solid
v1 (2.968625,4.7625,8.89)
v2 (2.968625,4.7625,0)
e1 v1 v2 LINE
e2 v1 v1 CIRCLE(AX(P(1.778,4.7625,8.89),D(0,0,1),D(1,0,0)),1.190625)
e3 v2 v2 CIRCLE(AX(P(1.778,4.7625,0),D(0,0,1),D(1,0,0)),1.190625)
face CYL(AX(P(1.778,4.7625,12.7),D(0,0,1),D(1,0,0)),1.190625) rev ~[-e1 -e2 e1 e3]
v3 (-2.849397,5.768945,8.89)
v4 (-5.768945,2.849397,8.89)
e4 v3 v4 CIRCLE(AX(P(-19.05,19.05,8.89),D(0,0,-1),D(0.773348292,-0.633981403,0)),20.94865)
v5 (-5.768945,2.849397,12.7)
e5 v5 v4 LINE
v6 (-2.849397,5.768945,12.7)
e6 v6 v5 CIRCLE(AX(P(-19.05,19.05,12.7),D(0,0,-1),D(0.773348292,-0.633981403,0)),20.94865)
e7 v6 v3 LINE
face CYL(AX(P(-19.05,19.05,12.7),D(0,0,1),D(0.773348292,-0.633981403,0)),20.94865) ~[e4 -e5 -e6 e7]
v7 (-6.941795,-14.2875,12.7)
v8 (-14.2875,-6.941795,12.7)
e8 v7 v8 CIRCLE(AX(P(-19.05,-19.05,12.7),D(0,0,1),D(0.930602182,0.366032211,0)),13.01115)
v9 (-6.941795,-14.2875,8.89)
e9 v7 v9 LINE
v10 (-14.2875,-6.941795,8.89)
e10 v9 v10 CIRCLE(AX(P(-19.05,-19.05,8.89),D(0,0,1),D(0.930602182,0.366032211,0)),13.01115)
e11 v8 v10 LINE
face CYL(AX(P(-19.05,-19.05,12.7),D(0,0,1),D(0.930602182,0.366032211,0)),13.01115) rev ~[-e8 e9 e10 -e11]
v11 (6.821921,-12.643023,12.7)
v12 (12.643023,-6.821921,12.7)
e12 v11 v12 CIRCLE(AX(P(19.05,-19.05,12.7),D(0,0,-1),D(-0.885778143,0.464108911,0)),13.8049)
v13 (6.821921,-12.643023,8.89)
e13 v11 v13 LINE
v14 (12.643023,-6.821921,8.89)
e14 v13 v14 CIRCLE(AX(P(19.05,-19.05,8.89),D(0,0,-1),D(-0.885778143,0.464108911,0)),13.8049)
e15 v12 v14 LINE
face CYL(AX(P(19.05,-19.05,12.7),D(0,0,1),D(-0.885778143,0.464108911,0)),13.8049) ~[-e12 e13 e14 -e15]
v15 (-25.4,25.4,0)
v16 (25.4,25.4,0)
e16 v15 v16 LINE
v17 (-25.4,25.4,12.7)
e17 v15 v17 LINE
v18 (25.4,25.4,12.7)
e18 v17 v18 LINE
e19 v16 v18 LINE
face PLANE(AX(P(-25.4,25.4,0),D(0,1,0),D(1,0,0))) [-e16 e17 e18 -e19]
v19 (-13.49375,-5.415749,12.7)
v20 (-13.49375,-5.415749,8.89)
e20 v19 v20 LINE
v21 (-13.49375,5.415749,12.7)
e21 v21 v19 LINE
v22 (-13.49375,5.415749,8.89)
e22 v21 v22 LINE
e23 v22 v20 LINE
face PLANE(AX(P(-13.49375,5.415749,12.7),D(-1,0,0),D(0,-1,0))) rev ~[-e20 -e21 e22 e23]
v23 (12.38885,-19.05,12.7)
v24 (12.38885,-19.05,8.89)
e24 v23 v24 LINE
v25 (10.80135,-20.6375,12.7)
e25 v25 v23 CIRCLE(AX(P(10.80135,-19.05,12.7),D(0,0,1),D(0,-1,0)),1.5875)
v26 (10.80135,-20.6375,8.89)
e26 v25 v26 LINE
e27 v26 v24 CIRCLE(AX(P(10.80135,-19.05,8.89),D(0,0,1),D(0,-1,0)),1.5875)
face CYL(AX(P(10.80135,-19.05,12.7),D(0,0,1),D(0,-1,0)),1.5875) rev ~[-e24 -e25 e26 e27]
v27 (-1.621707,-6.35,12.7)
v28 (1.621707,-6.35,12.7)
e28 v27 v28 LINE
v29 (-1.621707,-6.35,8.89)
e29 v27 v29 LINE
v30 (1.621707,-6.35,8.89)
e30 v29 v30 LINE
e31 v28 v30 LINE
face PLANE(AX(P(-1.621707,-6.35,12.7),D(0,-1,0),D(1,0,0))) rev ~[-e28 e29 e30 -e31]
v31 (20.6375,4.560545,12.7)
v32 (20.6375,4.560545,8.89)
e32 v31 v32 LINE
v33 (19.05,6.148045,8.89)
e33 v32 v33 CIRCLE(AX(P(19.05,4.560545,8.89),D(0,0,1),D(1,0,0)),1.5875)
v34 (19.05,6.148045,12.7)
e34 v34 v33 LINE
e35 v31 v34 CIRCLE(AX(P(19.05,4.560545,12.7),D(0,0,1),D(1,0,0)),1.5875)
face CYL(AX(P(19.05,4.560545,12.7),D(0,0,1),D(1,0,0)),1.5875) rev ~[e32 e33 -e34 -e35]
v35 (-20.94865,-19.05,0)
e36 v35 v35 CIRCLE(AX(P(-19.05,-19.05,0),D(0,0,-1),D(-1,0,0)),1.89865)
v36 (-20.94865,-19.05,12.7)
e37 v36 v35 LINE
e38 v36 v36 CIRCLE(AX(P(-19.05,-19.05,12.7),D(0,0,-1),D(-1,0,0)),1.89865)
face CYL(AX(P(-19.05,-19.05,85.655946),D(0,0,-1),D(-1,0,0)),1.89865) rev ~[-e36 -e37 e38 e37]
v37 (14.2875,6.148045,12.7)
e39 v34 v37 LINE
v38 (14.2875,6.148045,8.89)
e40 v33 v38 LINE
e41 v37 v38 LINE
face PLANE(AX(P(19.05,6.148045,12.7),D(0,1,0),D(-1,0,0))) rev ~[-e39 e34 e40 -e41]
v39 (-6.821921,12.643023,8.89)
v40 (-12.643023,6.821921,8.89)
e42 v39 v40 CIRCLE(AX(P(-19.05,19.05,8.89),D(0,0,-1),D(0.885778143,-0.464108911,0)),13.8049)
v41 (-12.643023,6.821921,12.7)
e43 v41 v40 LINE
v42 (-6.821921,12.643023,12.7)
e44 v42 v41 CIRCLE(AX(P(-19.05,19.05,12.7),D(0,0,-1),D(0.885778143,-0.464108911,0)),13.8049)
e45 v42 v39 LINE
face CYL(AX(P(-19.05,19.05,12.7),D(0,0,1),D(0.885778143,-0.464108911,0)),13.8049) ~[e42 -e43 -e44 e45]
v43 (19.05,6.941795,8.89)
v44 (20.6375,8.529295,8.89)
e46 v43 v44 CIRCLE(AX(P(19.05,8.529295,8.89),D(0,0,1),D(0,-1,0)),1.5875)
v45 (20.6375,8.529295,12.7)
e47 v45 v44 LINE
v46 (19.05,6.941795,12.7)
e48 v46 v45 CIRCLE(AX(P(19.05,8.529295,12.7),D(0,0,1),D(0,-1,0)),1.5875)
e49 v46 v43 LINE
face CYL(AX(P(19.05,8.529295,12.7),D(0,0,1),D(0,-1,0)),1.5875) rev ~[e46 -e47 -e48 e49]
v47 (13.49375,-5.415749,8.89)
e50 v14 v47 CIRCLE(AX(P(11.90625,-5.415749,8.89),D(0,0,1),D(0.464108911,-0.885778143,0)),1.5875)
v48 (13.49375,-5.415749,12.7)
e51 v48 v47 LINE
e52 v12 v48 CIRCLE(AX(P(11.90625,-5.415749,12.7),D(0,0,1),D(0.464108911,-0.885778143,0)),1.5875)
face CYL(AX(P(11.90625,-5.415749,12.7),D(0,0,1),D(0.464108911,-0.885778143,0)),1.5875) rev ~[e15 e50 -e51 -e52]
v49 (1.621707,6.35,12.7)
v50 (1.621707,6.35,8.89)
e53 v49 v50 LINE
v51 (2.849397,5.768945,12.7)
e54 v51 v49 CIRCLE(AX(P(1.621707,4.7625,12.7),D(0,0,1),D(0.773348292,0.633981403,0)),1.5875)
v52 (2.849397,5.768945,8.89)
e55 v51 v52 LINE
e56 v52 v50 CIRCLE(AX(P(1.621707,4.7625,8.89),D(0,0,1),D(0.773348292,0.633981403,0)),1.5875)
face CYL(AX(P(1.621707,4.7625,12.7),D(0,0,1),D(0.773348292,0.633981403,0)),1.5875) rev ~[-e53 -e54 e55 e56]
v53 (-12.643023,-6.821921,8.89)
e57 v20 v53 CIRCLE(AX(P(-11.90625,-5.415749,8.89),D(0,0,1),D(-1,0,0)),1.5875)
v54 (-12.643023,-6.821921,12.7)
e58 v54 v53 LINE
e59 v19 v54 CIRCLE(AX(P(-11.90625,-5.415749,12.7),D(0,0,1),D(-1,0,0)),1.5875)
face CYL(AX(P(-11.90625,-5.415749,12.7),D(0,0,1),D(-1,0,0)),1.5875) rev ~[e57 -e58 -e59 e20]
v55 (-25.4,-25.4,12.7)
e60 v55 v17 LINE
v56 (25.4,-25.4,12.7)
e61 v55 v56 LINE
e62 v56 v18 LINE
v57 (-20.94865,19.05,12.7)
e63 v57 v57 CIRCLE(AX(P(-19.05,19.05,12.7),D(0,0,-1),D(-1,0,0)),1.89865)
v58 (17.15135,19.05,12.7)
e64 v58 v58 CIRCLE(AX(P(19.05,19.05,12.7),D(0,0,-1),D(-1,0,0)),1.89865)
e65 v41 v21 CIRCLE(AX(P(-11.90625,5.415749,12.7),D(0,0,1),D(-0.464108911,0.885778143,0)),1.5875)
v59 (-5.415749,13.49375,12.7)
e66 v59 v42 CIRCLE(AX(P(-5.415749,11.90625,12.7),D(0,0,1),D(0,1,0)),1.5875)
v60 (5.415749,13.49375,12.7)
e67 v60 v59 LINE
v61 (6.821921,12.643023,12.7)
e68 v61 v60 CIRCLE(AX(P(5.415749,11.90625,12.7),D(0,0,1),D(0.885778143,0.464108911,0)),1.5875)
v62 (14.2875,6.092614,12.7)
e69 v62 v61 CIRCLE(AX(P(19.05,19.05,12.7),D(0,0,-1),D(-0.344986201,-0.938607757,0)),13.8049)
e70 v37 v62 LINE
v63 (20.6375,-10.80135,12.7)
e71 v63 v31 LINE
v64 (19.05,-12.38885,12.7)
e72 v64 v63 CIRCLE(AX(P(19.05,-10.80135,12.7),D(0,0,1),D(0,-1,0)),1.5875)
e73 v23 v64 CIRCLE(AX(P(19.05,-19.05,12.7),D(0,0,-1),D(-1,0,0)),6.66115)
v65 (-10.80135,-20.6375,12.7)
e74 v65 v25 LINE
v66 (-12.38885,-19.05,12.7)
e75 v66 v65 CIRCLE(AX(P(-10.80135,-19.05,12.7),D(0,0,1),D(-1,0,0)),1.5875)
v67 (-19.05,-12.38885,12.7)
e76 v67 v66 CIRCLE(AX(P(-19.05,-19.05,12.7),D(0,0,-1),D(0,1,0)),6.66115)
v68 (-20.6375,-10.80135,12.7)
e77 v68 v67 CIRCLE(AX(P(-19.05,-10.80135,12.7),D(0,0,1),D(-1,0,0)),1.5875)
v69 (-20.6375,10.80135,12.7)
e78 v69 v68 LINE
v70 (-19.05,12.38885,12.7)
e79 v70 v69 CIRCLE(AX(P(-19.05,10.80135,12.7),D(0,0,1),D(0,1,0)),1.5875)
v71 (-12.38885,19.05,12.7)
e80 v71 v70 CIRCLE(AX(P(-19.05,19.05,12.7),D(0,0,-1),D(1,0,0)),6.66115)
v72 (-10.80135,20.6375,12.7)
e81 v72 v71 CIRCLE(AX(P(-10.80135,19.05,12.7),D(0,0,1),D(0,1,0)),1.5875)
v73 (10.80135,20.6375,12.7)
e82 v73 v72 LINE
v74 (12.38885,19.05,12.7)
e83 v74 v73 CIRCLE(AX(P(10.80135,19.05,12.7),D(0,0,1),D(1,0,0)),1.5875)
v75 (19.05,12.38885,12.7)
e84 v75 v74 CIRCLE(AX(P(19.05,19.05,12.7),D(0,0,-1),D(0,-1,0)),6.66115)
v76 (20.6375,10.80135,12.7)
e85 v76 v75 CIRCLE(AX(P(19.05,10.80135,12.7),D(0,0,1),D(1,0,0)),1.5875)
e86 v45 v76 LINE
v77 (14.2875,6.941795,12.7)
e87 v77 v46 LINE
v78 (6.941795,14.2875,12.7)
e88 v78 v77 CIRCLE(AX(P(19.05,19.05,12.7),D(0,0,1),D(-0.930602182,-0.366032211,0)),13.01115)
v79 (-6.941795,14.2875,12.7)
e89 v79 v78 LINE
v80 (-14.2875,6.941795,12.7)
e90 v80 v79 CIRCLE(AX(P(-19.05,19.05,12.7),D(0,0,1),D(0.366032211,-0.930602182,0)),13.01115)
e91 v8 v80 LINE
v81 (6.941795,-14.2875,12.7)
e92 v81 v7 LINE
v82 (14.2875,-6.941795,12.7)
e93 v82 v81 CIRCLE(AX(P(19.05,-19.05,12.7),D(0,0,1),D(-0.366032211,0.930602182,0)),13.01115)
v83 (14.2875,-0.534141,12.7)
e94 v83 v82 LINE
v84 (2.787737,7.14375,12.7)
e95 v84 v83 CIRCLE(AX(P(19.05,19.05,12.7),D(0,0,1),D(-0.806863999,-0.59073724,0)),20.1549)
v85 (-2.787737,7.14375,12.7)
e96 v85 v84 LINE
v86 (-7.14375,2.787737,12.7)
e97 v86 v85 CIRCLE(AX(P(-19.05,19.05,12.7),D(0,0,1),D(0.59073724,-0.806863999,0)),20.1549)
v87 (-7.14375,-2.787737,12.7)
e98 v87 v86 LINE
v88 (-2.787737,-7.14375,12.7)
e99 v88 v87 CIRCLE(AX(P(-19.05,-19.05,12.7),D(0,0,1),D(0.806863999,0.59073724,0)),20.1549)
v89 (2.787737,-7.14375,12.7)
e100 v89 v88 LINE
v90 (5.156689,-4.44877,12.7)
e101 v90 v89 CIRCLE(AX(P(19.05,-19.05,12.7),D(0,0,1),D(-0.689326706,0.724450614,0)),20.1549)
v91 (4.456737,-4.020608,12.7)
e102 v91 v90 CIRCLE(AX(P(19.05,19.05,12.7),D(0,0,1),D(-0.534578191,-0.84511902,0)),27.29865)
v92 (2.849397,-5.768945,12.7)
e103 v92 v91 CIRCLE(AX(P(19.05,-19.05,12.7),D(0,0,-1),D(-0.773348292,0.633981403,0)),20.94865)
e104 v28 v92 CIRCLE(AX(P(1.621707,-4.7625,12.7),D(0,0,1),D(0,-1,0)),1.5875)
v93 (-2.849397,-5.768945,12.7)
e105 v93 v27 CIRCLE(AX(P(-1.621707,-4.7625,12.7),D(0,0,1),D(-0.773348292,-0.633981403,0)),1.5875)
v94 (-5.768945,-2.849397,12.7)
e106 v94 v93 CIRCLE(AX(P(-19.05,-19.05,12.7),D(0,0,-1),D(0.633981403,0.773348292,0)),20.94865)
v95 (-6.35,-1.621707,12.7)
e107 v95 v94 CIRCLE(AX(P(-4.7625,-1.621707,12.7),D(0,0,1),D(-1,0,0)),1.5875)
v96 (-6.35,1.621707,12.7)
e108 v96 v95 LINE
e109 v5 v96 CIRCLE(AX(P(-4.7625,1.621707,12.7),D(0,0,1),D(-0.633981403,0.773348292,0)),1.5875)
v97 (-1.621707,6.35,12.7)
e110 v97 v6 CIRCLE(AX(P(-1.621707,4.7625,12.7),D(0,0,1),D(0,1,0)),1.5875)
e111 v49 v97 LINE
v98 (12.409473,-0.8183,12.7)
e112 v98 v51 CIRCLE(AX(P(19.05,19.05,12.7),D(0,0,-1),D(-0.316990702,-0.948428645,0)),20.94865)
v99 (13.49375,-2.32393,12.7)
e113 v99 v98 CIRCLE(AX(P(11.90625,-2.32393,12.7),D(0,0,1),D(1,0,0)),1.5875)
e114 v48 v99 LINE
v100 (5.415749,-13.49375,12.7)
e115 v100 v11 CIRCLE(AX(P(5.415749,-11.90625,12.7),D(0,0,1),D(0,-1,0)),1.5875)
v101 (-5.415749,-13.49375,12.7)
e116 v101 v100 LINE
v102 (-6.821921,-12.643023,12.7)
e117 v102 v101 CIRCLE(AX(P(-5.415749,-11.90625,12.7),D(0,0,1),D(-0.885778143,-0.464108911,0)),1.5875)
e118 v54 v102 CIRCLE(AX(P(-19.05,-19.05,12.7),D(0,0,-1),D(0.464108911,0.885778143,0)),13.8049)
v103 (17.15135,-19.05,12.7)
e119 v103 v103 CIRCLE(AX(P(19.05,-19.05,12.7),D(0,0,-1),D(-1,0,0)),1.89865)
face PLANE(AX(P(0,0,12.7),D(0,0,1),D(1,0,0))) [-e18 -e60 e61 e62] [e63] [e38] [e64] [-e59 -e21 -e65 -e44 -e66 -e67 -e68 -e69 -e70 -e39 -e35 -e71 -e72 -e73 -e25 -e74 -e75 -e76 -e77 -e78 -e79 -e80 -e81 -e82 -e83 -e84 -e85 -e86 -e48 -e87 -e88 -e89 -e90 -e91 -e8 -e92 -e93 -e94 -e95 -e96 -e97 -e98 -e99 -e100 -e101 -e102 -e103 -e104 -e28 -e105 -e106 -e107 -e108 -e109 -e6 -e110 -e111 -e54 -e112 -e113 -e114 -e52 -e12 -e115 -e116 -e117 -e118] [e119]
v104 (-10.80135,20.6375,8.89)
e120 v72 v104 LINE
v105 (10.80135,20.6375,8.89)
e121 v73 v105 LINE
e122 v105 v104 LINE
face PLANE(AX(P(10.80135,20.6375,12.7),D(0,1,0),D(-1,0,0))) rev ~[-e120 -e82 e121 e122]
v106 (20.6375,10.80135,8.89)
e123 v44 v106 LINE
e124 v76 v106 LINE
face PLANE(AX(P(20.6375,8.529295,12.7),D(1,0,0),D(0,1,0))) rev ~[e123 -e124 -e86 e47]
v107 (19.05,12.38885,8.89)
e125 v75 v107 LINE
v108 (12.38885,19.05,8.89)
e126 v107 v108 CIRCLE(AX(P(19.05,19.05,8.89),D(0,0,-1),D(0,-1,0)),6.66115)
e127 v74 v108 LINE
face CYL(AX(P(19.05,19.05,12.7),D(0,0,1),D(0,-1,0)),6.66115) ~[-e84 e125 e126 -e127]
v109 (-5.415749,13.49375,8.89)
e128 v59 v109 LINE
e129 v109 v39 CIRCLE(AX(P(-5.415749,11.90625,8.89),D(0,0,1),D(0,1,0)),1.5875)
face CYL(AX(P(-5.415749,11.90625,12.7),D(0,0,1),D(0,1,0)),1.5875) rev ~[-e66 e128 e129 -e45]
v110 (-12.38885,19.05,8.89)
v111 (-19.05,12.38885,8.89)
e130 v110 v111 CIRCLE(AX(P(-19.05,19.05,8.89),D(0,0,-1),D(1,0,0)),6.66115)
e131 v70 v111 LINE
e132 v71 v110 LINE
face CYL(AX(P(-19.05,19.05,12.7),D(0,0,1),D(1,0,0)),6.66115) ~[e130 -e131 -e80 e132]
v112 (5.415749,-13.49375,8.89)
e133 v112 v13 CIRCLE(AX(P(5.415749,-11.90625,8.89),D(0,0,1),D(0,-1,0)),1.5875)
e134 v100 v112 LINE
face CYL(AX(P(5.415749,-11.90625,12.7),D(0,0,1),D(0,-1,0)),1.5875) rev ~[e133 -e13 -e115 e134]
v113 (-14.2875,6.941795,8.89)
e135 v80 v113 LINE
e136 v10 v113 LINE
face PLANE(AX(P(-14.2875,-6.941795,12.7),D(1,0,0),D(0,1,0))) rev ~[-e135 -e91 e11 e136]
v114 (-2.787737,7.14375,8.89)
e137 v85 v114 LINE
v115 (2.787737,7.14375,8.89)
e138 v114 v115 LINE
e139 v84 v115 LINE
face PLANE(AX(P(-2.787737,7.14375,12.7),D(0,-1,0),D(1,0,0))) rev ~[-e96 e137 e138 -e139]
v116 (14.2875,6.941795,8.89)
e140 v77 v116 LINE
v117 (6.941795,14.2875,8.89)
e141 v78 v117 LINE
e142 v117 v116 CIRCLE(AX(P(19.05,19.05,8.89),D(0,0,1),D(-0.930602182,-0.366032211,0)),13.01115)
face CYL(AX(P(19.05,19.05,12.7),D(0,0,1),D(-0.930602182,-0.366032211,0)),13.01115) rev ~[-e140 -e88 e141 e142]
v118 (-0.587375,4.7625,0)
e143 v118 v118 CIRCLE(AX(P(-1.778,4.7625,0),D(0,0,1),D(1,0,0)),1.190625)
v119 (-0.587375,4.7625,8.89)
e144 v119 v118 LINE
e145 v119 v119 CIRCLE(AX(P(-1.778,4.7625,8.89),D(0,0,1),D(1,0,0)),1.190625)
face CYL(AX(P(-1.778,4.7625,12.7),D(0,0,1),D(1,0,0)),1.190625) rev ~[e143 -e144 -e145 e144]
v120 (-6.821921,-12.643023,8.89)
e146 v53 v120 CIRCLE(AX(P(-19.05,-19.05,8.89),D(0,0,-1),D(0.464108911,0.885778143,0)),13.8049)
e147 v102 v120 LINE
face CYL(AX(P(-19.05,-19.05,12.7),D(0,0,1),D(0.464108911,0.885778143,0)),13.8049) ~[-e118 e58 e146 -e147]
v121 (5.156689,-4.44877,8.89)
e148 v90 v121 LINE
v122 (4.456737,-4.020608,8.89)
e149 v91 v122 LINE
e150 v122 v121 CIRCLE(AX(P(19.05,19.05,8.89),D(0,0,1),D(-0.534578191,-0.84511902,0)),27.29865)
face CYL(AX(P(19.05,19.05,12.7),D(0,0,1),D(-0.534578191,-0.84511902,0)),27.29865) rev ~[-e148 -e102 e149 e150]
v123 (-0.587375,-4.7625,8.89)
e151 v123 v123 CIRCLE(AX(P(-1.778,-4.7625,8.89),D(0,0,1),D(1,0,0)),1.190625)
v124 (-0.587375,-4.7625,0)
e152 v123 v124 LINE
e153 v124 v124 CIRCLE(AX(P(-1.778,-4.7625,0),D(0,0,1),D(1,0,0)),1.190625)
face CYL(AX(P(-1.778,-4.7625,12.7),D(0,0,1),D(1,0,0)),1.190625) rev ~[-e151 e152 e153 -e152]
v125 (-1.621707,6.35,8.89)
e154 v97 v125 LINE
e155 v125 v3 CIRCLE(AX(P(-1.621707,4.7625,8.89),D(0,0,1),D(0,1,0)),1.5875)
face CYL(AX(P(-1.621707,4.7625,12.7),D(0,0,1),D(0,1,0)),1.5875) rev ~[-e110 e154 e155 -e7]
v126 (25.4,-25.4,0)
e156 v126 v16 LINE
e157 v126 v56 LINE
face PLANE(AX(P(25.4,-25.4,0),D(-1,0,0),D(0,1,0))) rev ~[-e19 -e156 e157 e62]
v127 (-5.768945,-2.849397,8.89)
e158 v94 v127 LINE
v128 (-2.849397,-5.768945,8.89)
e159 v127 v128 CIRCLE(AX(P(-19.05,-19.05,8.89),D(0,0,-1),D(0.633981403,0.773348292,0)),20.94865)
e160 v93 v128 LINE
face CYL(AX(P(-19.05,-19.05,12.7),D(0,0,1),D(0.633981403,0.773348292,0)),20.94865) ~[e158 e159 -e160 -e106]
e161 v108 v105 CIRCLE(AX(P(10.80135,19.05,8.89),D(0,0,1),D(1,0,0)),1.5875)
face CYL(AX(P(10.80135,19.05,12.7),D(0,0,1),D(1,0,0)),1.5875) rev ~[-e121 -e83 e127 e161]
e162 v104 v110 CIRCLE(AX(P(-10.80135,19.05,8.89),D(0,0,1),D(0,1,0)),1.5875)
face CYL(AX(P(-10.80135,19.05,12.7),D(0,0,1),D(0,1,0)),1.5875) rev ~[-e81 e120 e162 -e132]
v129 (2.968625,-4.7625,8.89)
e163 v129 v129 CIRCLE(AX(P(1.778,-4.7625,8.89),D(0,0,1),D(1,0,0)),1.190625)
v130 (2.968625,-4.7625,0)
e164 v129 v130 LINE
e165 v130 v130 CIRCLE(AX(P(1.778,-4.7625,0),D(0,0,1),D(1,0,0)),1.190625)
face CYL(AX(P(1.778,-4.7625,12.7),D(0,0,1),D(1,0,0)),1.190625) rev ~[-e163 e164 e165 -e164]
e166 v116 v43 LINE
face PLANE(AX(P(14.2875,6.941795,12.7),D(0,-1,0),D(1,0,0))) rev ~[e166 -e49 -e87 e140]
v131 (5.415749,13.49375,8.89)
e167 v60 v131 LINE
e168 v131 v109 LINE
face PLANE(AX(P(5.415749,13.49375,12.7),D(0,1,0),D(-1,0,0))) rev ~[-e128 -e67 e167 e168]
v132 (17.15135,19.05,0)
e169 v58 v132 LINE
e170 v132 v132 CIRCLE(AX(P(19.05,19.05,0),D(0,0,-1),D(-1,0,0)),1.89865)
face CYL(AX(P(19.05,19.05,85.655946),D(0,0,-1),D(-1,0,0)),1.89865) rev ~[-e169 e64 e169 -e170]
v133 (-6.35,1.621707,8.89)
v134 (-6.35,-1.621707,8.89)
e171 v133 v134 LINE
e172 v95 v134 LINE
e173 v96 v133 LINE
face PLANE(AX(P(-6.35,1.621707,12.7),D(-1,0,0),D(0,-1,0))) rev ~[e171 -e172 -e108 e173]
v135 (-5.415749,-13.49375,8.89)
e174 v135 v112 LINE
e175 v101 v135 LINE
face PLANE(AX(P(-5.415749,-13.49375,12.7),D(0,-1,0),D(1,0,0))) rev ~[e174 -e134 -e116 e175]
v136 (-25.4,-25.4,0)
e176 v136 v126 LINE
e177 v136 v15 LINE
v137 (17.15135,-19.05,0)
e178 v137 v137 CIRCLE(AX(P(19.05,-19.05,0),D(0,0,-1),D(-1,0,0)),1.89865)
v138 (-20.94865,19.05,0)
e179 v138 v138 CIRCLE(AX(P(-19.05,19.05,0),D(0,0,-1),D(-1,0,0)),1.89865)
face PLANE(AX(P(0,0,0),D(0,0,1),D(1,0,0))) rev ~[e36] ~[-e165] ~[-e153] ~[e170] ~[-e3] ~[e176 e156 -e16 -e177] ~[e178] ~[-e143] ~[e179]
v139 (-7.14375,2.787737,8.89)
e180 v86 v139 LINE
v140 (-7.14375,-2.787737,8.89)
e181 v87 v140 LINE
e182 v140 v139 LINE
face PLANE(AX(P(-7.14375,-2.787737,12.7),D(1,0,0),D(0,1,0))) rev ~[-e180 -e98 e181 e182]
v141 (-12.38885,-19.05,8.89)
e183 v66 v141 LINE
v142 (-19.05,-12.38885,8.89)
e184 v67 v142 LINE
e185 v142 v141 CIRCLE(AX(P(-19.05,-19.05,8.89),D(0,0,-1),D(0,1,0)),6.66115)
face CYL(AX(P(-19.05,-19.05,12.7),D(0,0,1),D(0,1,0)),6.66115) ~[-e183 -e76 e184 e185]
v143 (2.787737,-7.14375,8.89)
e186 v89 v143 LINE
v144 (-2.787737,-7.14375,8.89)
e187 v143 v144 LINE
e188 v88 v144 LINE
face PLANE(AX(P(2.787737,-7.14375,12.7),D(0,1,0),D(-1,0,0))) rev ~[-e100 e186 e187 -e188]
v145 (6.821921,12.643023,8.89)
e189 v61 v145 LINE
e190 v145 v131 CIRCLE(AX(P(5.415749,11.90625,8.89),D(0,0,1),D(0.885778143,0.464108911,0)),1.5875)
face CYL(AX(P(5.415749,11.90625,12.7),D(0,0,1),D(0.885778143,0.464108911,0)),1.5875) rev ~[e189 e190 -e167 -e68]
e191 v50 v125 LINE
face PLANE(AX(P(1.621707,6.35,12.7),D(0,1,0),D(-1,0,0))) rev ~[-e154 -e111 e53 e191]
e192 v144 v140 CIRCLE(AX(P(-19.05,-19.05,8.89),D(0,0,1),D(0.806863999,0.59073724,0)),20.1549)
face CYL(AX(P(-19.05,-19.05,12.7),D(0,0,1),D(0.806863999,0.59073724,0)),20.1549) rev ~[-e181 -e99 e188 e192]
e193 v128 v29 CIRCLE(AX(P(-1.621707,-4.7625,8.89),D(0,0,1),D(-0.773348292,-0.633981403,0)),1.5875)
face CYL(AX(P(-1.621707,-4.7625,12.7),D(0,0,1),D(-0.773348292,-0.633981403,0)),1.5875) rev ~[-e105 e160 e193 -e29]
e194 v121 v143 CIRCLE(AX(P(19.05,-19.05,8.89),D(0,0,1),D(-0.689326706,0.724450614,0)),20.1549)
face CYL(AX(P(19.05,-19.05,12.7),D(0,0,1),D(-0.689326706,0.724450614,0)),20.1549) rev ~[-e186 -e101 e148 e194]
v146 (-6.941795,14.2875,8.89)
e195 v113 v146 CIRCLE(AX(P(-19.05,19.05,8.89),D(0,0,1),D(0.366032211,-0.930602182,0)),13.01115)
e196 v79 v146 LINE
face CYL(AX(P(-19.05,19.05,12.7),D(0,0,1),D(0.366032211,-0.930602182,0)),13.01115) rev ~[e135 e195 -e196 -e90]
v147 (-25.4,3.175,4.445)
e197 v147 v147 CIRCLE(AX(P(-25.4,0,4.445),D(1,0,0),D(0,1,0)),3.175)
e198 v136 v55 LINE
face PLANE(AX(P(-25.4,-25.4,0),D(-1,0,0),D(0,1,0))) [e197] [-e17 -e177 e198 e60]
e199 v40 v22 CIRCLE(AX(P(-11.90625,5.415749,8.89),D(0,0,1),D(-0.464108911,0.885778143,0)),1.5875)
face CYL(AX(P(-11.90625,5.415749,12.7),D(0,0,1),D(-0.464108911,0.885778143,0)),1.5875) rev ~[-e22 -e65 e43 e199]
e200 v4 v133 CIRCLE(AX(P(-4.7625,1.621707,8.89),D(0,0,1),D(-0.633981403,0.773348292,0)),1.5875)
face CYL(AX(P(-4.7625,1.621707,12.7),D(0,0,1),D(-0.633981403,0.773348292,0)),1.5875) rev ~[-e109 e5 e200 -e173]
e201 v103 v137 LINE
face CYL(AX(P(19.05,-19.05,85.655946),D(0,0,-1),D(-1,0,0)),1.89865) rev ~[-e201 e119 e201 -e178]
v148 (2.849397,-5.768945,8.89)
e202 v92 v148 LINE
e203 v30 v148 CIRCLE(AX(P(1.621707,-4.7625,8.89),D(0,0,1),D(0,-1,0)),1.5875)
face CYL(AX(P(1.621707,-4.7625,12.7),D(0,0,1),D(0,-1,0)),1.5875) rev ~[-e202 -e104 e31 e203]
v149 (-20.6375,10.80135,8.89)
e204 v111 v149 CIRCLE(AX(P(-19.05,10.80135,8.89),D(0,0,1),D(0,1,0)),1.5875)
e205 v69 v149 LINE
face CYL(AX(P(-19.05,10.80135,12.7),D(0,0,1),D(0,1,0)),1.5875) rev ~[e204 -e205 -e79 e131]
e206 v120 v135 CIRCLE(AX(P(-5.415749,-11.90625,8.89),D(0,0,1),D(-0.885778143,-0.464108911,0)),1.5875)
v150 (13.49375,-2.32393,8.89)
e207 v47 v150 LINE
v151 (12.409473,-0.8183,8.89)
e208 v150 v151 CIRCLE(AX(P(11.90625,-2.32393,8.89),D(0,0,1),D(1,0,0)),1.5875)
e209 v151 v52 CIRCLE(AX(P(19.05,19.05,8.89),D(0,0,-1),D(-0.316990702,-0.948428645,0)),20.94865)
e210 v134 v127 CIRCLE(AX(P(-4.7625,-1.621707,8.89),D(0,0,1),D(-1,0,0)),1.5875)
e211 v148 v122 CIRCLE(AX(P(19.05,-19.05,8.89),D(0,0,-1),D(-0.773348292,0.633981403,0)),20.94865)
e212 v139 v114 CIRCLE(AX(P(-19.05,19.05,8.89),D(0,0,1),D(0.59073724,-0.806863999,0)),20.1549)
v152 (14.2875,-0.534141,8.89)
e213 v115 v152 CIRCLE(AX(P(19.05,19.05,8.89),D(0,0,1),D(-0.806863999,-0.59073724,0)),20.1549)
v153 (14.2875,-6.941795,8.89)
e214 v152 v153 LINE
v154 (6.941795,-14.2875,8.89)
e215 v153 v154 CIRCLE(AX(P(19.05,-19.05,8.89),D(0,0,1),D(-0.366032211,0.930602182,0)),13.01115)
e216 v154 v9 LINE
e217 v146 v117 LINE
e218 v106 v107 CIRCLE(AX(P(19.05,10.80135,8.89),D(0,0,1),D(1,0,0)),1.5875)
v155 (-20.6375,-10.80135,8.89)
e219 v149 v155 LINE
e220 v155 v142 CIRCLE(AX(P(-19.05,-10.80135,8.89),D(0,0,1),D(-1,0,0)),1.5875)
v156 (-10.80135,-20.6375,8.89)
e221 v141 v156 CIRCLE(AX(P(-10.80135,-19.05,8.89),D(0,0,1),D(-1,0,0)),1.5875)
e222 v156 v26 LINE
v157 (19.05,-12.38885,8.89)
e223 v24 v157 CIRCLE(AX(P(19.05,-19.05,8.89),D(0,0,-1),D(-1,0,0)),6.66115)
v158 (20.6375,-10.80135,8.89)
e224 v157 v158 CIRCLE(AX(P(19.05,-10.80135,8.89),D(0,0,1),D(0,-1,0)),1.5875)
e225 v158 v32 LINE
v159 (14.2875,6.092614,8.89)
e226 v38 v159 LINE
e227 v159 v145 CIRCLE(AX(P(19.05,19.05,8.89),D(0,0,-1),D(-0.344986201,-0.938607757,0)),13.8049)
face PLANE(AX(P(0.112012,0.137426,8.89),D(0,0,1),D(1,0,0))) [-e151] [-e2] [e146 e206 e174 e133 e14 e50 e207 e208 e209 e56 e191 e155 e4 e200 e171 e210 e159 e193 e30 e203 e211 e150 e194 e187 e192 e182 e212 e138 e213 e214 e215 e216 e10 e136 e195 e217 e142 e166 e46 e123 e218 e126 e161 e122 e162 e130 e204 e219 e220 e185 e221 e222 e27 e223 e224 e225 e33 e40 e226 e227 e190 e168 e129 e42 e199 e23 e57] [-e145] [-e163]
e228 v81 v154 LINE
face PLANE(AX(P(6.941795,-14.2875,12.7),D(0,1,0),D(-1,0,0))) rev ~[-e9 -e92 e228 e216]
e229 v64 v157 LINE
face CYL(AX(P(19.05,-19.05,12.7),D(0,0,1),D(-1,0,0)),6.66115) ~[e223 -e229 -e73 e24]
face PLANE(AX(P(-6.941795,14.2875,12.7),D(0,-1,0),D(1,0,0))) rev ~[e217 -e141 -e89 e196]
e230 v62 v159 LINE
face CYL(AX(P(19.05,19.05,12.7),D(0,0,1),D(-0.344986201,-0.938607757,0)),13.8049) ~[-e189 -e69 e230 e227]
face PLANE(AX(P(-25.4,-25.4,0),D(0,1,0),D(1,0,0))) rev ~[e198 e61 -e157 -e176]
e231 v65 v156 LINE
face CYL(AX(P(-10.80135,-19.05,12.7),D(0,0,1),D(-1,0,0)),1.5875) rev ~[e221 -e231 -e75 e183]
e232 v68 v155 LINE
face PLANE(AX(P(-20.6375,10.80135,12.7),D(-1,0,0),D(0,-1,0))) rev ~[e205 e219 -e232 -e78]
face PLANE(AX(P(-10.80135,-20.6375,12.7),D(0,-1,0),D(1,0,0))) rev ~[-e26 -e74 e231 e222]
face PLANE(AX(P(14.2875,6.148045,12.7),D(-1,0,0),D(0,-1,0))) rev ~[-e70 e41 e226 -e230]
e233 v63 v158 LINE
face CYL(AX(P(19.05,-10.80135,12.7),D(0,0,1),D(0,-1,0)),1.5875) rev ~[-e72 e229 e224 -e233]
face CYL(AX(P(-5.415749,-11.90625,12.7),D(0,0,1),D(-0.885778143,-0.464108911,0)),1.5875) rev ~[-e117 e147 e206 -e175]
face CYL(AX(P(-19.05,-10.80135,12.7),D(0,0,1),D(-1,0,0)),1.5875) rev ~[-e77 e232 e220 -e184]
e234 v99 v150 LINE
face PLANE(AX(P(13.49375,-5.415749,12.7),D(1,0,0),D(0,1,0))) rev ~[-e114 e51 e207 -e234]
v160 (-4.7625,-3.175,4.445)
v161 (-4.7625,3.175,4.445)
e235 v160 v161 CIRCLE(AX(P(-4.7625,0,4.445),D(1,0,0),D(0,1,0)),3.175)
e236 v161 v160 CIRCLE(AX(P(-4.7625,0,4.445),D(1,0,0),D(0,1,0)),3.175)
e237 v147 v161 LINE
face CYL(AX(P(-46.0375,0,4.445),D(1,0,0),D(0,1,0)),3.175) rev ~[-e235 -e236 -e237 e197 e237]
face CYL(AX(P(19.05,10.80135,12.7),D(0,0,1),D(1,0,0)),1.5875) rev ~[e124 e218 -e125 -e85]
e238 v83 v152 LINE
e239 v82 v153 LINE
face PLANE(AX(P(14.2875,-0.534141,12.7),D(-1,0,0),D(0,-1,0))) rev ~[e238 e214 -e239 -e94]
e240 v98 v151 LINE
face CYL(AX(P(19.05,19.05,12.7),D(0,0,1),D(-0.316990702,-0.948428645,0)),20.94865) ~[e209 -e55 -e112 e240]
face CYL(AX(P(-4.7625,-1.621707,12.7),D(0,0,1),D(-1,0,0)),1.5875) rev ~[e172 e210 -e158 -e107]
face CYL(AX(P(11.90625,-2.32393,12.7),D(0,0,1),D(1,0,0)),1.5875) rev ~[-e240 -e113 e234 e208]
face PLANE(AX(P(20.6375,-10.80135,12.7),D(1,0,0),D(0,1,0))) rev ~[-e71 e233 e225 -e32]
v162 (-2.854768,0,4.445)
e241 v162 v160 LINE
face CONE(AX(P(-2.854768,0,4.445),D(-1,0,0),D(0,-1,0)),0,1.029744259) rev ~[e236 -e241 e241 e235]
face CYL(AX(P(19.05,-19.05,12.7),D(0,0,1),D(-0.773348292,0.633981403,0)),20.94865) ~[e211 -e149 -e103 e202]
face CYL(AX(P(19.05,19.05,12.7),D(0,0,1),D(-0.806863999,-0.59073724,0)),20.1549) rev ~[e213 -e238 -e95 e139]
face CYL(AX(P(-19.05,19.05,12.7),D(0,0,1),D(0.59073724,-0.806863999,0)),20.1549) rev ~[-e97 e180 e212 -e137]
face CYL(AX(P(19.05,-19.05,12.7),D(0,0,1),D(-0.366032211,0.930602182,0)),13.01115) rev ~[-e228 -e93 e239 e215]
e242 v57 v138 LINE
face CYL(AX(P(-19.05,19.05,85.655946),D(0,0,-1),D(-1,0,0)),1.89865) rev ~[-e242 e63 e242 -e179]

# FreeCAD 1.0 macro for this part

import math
import FreeCAD as App
import Part
import Sketcher
from FreeCAD import Vector
Q = App.Units.Quantity


def add_polygon(sketch, points):
    """Adds a closed chain of lines whose ends are joined by coincident constraints."""
    first, n = sketch.GeometryCount, len(points)
    for a, b in zip(points, points[1:] + points[:1]):
        sketch.addGeometry(Part.LineSegment(App.Vector(*a, 0), App.Vector(*b, 0)), False)
    for i in range(n):
        sketch.addConstraint(Sketcher.Constraint("Coincident", first + i, 2, first + (i + 1) % n, 1))

doc = App.newDocument("Part")
body = doc.addObject("PartDesign::Body", "Body")

sketch1 = doc.addObject("Sketcher::SketchObject", "Sketch")
body.addObject(sketch1)
sketch1.AttachmentSupport = (doc.XY_Plane, [""])
sketch1.MapMode = "FlatFace"
add_polygon(sketch1, [(-25.4, 25.4), (-25.4, -25.4), (25.4, -25.4), (25.4, 25.4)])
sketch1.addConstraint([
    Sketcher.Constraint("Vertical", 0),
    Sketcher.Constraint("Horizontal", 1),
    Sketcher.Constraint("Vertical", 2),
    Sketcher.Constraint("Horizontal", 3),
    Sketcher.Constraint("Symmetric", 0, 2, 2, 2, -1, 1),
    Sketcher.Constraint("Equal", 3, 0),
    Sketcher.Constraint("DistanceX", 1, 1, 1, 2, Q("2 in")),
])
pad1 = doc.addObject("PartDesign::Pad", "Pad")
body.addObject(pad1)
pad1.Profile = sketch1
pad1.Length = Q("0.5 in")

sketch2 = doc.addObject("Sketcher::SketchObject", "Sketch001")
body.addObject(sketch2)
sketch2.AttachmentSupport = (doc.YZ_Plane, [""])
sketch2.MapMode = "FlatFace"
sketch2.AttachmentOffset = App.Placement(Vector(0, 0, -1 * 25.4), App.Rotation())
sketch2.addGeometry(Part.Circle(Vector(0, 4.445, 0), Vector(0, 0, 1), 3.175), False)
sketch2.addConstraint([
    Sketcher.Constraint("PointOnObject", 0, 3, -2),
    Sketcher.Constraint("Diameter", 0, Q("0.25 in")),
    Sketcher.Constraint("DistanceY", -1, 1, 0, 3, Q("0.175 in")),
])
doc.recompute()
hole = doc.addObject("PartDesign::Hole", "Hole")
body.addObject(hole)
hole.Profile = sketch2
hole.ThreadType = "None"
hole.Diameter = Q("0.25 in")
hole.DepthType = "Dimension"
hole.Depth = Q("0.8125 in")
hole.DrillPoint = "Angled"
hole.DrillPointAngle = 118
hole.Reversed = True

sketch3 = doc.addObject("Sketcher::SketchObject", "Sketch002")
body.addObject(sketch3)
sketch3.AttachmentSupport = (doc.XY_Plane, [""])
sketch3.MapMode = "FlatFace"
sketch3.AttachmentOffset = App.Placement(Vector(0, 0, 0.5 * 25.4), App.Rotation())
sketch3.addGeometry([
    Part.Circle(Vector(-19.05, 19.05, 0), Vector(0, 0, 1), 1.89865),
    Part.Circle(Vector(19.05, 19.05, 0), Vector(0, 0, 1), 1.89865),
    Part.Circle(Vector(19.05, -19.05, 0), Vector(0, 0, 1), 1.89865),
    Part.Circle(Vector(-19.05, -19.05, 0), Vector(0, 0, 1), 1.89865),
], False)
sketch3.addConstraint([
    Sketcher.Constraint("Equal", 0, 1),
    Sketcher.Constraint("Equal", 1, 2),
    Sketcher.Constraint("Equal", 2, 3),
    Sketcher.Constraint("Symmetric", 0, 3, 2, 3, -1, 1),
    Sketcher.Constraint("Symmetric", 1, 3, 3, 3, -1, 1),
    Sketcher.Constraint("Symmetric", 0, 3, 1, 3, -2),
    Sketcher.Constraint("Diameter", 0, Q("0.1495 in")),
    Sketcher.Constraint("DistanceX", 0, 3, 1, 3, Q("1.5 in")),
    Sketcher.Constraint("DistanceY", 2, 3, 1, 3, Q("1.5 in")),
])
doc.recompute()
hole2 = doc.addObject("PartDesign::Hole", "Hole001")
body.addObject(hole2)
hole2.Profile = sketch3
hole2.ThreadType = "None"
hole2.Diameter = Q("0.1495 in")
hole2.DepthType = "ThroughAll"

sketch4 = doc.addObject("Sketcher::SketchObject", "Sketch003")
body.addObject(sketch4)
sketch4.AttachmentSupport = (doc.XY_Plane, [""])
sketch4.MapMode = "FlatFace"
sketch4.AttachmentOffset = App.Placement(Vector(0, 0, 0.5 * 25.4), App.Rotation())
sketch4.addGeometry([
    Part.LineSegment(Vector(20.6375, 8.529295, 0), Vector(20.6375, 10.80135, 0)),
    Part.ArcOfCircle(Part.Circle(Vector(19.05, 10.80135, 0), Vector(0, 0, 1), 1.5875), math.radians(0), math.radians(90)),
    Part.ArcOfCircle(Part.Circle(Vector(19.05, 19.05, 0), Vector(0, 0, 1), 6.66115), math.radians(180), math.radians(270)),
    Part.ArcOfCircle(Part.Circle(Vector(10.80135, 19.05, 0), Vector(0, 0, 1), 1.5875), math.radians(0), math.radians(90)),
    Part.LineSegment(Vector(10.80135, 20.6375, 0), Vector(-10.80135, 20.6375, 0)),
    Part.ArcOfCircle(Part.Circle(Vector(-10.80135, 19.05, 0), Vector(0, 0, 1), 1.5875), math.radians(90), math.radians(180)),
    Part.ArcOfCircle(Part.Circle(Vector(-19.05, 19.05, 0), Vector(0, 0, 1), 6.66115), math.radians(-90), math.radians(0)),
    Part.ArcOfCircle(Part.Circle(Vector(-19.05, 10.80135, 0), Vector(0, 0, 1), 1.5875), math.radians(90), math.radians(180)),
    Part.LineSegment(Vector(-20.6375, 10.80135, 0), Vector(-20.6375, -10.80135, 0)),
    Part.ArcOfCircle(Part.Circle(Vector(-19.05, -10.80135, 0), Vector(0, 0, 1), 1.5875), math.radians(180), math.radians(270)),
    Part.ArcOfCircle(Part.Circle(Vector(-19.05, -19.05, 0), Vector(0, 0, 1), 6.66115), math.radians(0), math.radians(90)),
    Part.ArcOfCircle(Part.Circle(Vector(-10.80135, -19.05, 0), Vector(0, 0, 1), 1.5875), math.radians(180), math.radians(270)),
    Part.LineSegment(Vector(-10.80135, -20.6375, 0), Vector(10.80135, -20.6375, 0)),
    Part.ArcOfCircle(Part.Circle(Vector(10.80135, -19.05, 0), Vector(0, 0, 1), 1.5875), math.radians(-90), math.radians(0)),
    Part.ArcOfCircle(Part.Circle(Vector(19.05, -19.05, 0), Vector(0, 0, 1), 6.66115), math.radians(90), math.radians(180)),
    Part.ArcOfCircle(Part.Circle(Vector(19.05, -10.80135, 0), Vector(0, 0, 1), 1.5875), math.radians(-90), math.radians(0)),
    Part.LineSegment(Vector(20.6375, -10.80135, 0), Vector(20.6375, 4.560545, 0)),
    Part.ArcOfCircle(Part.Circle(Vector(19.05, 4.560545, 0), Vector(0, 0, 1), 1.5875), math.radians(0), math.radians(90)),
    Part.LineSegment(Vector(19.05, 6.148045, 0), Vector(14.2875, 6.148045, 0)),
    Part.LineSegment(Vector(14.2875, 6.148045, 0), Vector(14.2875, 6.092614, 0)),
    Part.ArcOfCircle(Part.Circle(Vector(19.05, 19.05, 0), Vector(0, 0, 1), 13.8049), math.radians(-152.347432), math.radians(-110.180953)),
    Part.ArcOfCircle(Part.Circle(Vector(5.415749, 11.90625, 0), Vector(0, 0, 1), 1.5875), math.radians(27.652568), math.radians(90)),
    Part.LineSegment(Vector(5.415749, 13.49375, 0), Vector(-5.415749, 13.49375, 0)),
    Part.ArcOfCircle(Part.Circle(Vector(-5.415749, 11.90625, 0), Vector(0, 0, 1), 1.5875), math.radians(90), math.radians(152.347432)),
    Part.ArcOfCircle(Part.Circle(Vector(-19.05, 19.05, 0), Vector(0, 0, 1), 13.8049), math.radians(-62.347432), math.radians(-27.652568)),
    Part.ArcOfCircle(Part.Circle(Vector(-11.90625, 5.415749, 0), Vector(0, 0, 1), 1.5875), math.radians(117.652568), math.radians(180)),
    Part.LineSegment(Vector(-13.49375, 5.415749, 0), Vector(-13.49375, -5.415749, 0)),
    Part.ArcOfCircle(Part.Circle(Vector(-11.90625, -5.415749, 0), Vector(0, 0, 1), 1.5875), math.radians(180), math.radians(242.347432)),
    Part.ArcOfCircle(Part.Circle(Vector(-19.05, -19.05, 0), Vector(0, 0, 1), 13.8049), math.radians(27.652568), math.radians(62.347432)),
    Part.ArcOfCircle(Part.Circle(Vector(-5.415749, -11.90625, 0), Vector(0, 0, 1), 1.5875), math.radians(-152.347432), math.radians(-90)),
    Part.LineSegment(Vector(-5.415749, -13.49375, 0), Vector(5.415749, -13.49375, 0)),
    Part.ArcOfCircle(Part.Circle(Vector(5.415749, -11.90625, 0), Vector(0, 0, 1), 1.5875), math.radians(-90), math.radians(-27.652568)),
    Part.ArcOfCircle(Part.Circle(Vector(19.05, -19.05, 0), Vector(0, 0, 1), 13.8049), math.radians(117.652568), math.radians(152.347432)),
    Part.ArcOfCircle(Part.Circle(Vector(11.90625, -5.415749, 0), Vector(0, 0, 1), 1.5875), math.radians(-62.347432), math.radians(0)),
    Part.LineSegment(Vector(13.49375, -5.415749, 0), Vector(13.49375, -2.32393, 0)),
    Part.ArcOfCircle(Part.Circle(Vector(11.90625, -2.32393, 0), Vector(0, 0, 1), 1.5875), math.radians(0), math.radians(71.518967)),
    Part.ArcOfCircle(Part.Circle(Vector(19.05, 19.05, 0), Vector(0, 0, 1), 20.94865), math.radians(-140.655522), math.radians(-108.481033)),
    Part.ArcOfCircle(Part.Circle(Vector(1.621707, 4.7625, 0), Vector(0, 0, 1), 1.5875), math.radians(39.344478), math.radians(90)),
    Part.LineSegment(Vector(1.621707, 6.35, 0), Vector(-1.621707, 6.35, 0)),
    Part.ArcOfCircle(Part.Circle(Vector(-1.621707, 4.7625, 0), Vector(0, 0, 1), 1.5875), math.radians(90), math.radians(140.655522)),
    Part.ArcOfCircle(Part.Circle(Vector(-19.05, 19.05, 0), Vector(0, 0, 1), 20.94865), math.radians(-50.655522), math.radians(-39.344478)),
    Part.ArcOfCircle(Part.Circle(Vector(-4.7625, 1.621707, 0), Vector(0, 0, 1), 1.5875), math.radians(129.344478), math.radians(180)),
    Part.LineSegment(Vector(-6.35, 1.621707, 0), Vector(-6.35, -1.621707, 0)),
    Part.ArcOfCircle(Part.Circle(Vector(-4.7625, -1.621707, 0), Vector(0, 0, 1), 1.5875), math.radians(180), math.radians(230.655522)),
    Part.ArcOfCircle(Part.Circle(Vector(-19.05, -19.05, 0), Vector(0, 0, 1), 20.94865), math.radians(39.344478), math.radians(50.655522)),
    Part.ArcOfCircle(Part.Circle(Vector(-1.621707, -4.7625, 0), Vector(0, 0, 1), 1.5875), math.radians(-140.655522), math.radians(-90)),
    Part.LineSegment(Vector(-1.621707, -6.35, 0), Vector(1.621707, -6.35, 0)),
    Part.ArcOfCircle(Part.Circle(Vector(1.621707, -4.7625, 0), Vector(0, 0, 1), 1.5875), math.radians(-90), math.radians(-39.344478)),
    Part.ArcOfCircle(Part.Circle(Vector(19.05, -19.05, 0), Vector(0, 0, 1), 20.94865), math.radians(134.156506), math.radians(140.655522)),
    Part.ArcOfCircle(Part.Circle(Vector(19.05, 19.05, 0), Vector(0, 0, 1), 27.29865), math.radians(-122.31531), math.radians(-120.593093)),
    Part.ArcOfCircle(Part.Circle(Vector(19.05, -19.05, 0), Vector(0, 0, 1), 20.1549), math.radians(133.576835), math.radians(143.790658)),
    Part.LineSegment(Vector(2.787737, -7.14375, 0), Vector(-2.787737, -7.14375, 0)),
    Part.ArcOfCircle(Part.Circle(Vector(-19.05, -19.05, 0), Vector(0, 0, 1), 20.1549), math.radians(36.209342), math.radians(53.790658)),
    Part.LineSegment(Vector(-7.14375, -2.787737, 0), Vector(-7.14375, 2.787737, 0)),
    Part.ArcOfCircle(Part.Circle(Vector(-19.05, 19.05, 0), Vector(0, 0, 1), 20.1549), math.radians(-53.790658), math.radians(-36.209342)),
    Part.LineSegment(Vector(-2.787737, 7.14375, 0), Vector(2.787737, 7.14375, 0)),
    Part.ArcOfCircle(Part.Circle(Vector(19.05, 19.05, 0), Vector(0, 0, 1), 20.1549), math.radians(-143.790658), math.radians(-103.667965)),
    Part.LineSegment(Vector(14.2875, -0.534141, 0), Vector(14.2875, -6.941795, 0)),
    Part.ArcOfCircle(Part.Circle(Vector(19.05, -19.05, 0), Vector(0, 0, 1), 13.01115), math.radians(111.471121), math.radians(158.528879)),
    Part.LineSegment(Vector(6.941795, -14.2875, 0), Vector(-6.941795, -14.2875, 0)),
    Part.ArcOfCircle(Part.Circle(Vector(-19.05, -19.05, 0), Vector(0, 0, 1), 13.01115), math.radians(21.471121), math.radians(68.528879)),
    Part.LineSegment(Vector(-14.2875, -6.941795, 0), Vector(-14.2875, 6.941795, 0)),
    Part.ArcOfCircle(Part.Circle(Vector(-19.05, 19.05, 0), Vector(0, 0, 1), 13.01115), math.radians(-68.528879), math.radians(-21.471121)),
    Part.LineSegment(Vector(-6.941795, 14.2875, 0), Vector(6.941795, 14.2875, 0)),
    Part.ArcOfCircle(Part.Circle(Vector(19.05, 19.05, 0), Vector(0, 0, 1), 13.01115), math.radians(-158.528879), math.radians(-111.471121)),
    Part.LineSegment(Vector(14.2875, 6.941795, 0), Vector(19.05, 6.941795, 0)),
    Part.ArcOfCircle(Part.Circle(Vector(19.05, 8.529295, 0), Vector(0, 0, 1), 1.5875), math.radians(-90), math.radians(0)),
], False)
sketch4.addConstraint([
    Sketcher.Constraint("Tangent", 0, 2, 1, 1),
    Sketcher.Constraint("Tangent", 1, 2, 2, 2),
    Sketcher.Constraint("Tangent", 2, 1, 3, 1),
    Sketcher.Constraint("Tangent", 3, 2, 4, 1),
    Sketcher.Constraint("Tangent", 4, 2, 5, 1),
    Sketcher.Constraint("Tangent", 5, 2, 6, 2),
    Sketcher.Constraint("Tangent", 6, 1, 7, 1),
    Sketcher.Constraint("Tangent", 7, 2, 8, 1),
    Sketcher.Constraint("Tangent", 8, 2, 9, 1),
    Sketcher.Constraint("Tangent", 9, 2, 10, 2),
    Sketcher.Constraint("Tangent", 10, 1, 11, 1),
    Sketcher.Constraint("Tangent", 11, 2, 12, 1),
    Sketcher.Constraint("Tangent", 12, 2, 13, 1),
    Sketcher.Constraint("Tangent", 13, 2, 14, 2),
    Sketcher.Constraint("Tangent", 14, 1, 15, 1),
    Sketcher.Constraint("Tangent", 15, 2, 16, 1),
    Sketcher.Constraint("Tangent", 16, 2, 17, 1),
    Sketcher.Constraint("Tangent", 17, 2, 18, 1),
    Sketcher.Constraint("Coincident", 18, 2, 19, 1),
    Sketcher.Constraint("Coincident", 19, 2, 20, 2),
    Sketcher.Constraint("Tangent", 20, 1, 21, 1),
    Sketcher.Constraint("Tangent", 21, 2, 22, 1),
    Sketcher.Constraint("Tangent", 22, 2, 23, 1),
    Sketcher.Constraint("Tangent", 23, 2, 24, 2),
    Sketcher.Constraint("Tangent", 24, 1, 25, 1),
    Sketcher.Constraint("Tangent", 25, 2, 26, 1),
    Sketcher.Constraint("Tangent", 26, 2, 27, 1),
    Sketcher.Constraint("Tangent", 27, 2, 28, 2),
    Sketcher.Constraint("Tangent", 28, 1, 29, 1),
    Sketcher.Constraint("Tangent", 29, 2, 30, 1),
    Sketcher.Constraint("Tangent", 30, 2, 31, 1),
    Sketcher.Constraint("Tangent", 31, 2, 32, 2),
    Sketcher.Constraint("Tangent", 32, 1, 33, 1),
    Sketcher.Constraint("Tangent", 33, 2, 34, 1),
    Sketcher.Constraint("Tangent", 34, 2, 35, 1),
    Sketcher.Constraint("Tangent", 35, 2, 36, 2),
    Sketcher.Constraint("Tangent", 36, 1, 37, 1),
    Sketcher.Constraint("Tangent", 37, 2, 38, 1),
    Sketcher.Constraint("Tangent", 38, 2, 39, 1),
    Sketcher.Constraint("Tangent", 39, 2, 40, 2),
    Sketcher.Constraint("Tangent", 40, 1, 41, 1),
    Sketcher.Constraint("Tangent", 41, 2, 42, 1),
    Sketcher.Constraint("Tangent", 42, 2, 43, 1),
    Sketcher.Constraint("Tangent", 43, 2, 44, 2),
    Sketcher.Constraint("Tangent", 44, 1, 45, 1),
    Sketcher.Constraint("Tangent", 45, 2, 46, 1),
    Sketcher.Constraint("Tangent", 46, 2, 47, 1),
    Sketcher.Constraint("Tangent", 47, 2, 48, 2),
    Sketcher.Constraint("Coincident", 48, 1, 49, 1),
    Sketcher.Constraint("Coincident", 49, 2, 50, 1),
    Sketcher.Constraint("Coincident", 50, 2, 51, 1),
    Sketcher.Constraint("Coincident", 51, 2, 52, 1),
    Sketcher.Constraint("Coincident", 52, 2, 53, 1),
    Sketcher.Constraint("Coincident", 53, 2, 54, 1),
    Sketcher.Constraint("Coincident", 54, 2, 55, 1),
    Sketcher.Constraint("Coincident", 55, 2, 56, 1),
    Sketcher.Constraint("Coincident", 56, 2, 57, 1),
    Sketcher.Constraint("Coincident", 57, 2, 58, 1),
    Sketcher.Constraint("Coincident", 58, 2, 59, 1),
    Sketcher.Constraint("Coincident", 59, 2, 60, 1),
    Sketcher.Constraint("Coincident", 60, 2, 61, 1),
    Sketcher.Constraint("Coincident", 61, 2, 62, 1),
    Sketcher.Constraint("Coincident", 62, 2, 63, 1),
    Sketcher.Constraint("Coincident", 63, 2, 64, 1),
    Sketcher.Constraint("Coincident", 64, 2, 65, 1),
    Sketcher.Constraint("Tangent", 65, 2, 66, 1),
    Sketcher.Constraint("Tangent", 66, 2, 0, 1),
    Sketcher.Constraint("Vertical", 0),
    Sketcher.Constraint("Horizontal", 4),
    Sketcher.Constraint("Vertical", 8),
    Sketcher.Constraint("Horizontal", 12),
    Sketcher.Constraint("Vertical", 16),
    Sketcher.Constraint("Horizontal", 18),
    Sketcher.Constraint("Vertical", 19),
    Sketcher.Constraint("Horizontal", 22),
    Sketcher.Constraint("Vertical", 26),
    Sketcher.Constraint("Horizontal", 30),
    Sketcher.Constraint("Vertical", 34),
    Sketcher.Constraint("Horizontal", 38),
    Sketcher.Constraint("Vertical", 42),
    Sketcher.Constraint("Horizontal", 46),
    Sketcher.Constraint("Horizontal", 51),
    Sketcher.Constraint("Vertical", 53),
    Sketcher.Constraint("Horizontal", 55),
    Sketcher.Constraint("Vertical", 57),
    Sketcher.Constraint("Horizontal", 59),
    Sketcher.Constraint("Vertical", 61),
    Sketcher.Constraint("Horizontal", 63),
    Sketcher.Constraint("Horizontal", 65),
    Sketcher.Constraint("Coincident", 20, 3, 2, 3),
    Sketcher.Constraint("Coincident", 24, 3, 6, 3),
    Sketcher.Constraint("Coincident", 28, 3, 10, 3),
    Sketcher.Constraint("Coincident", 32, 3, 14, 3),
    Sketcher.Constraint("Coincident", 36, 3, 2, 3),
    Sketcher.Constraint("Coincident", 40, 3, 6, 3),
    Sketcher.Constraint("Coincident", 44, 3, 10, 3),
    Sketcher.Constraint("Coincident", 48, 3, 14, 3),
    Sketcher.Constraint("Coincident", 49, 3, 2, 3),
    Sketcher.Constraint("Coincident", 50, 3, 14, 3),
    Sketcher.Constraint("Coincident", 52, 3, 10, 3),
    Sketcher.Constraint("Coincident", 54, 3, 6, 3),
    Sketcher.Constraint("Coincident", 56, 3, 2, 3),
    Sketcher.Constraint("Coincident", 58, 3, 14, 3),
    Sketcher.Constraint("Coincident", 60, 3, 10, 3),
    Sketcher.Constraint("Coincident", 62, 3, 6, 3),
    Sketcher.Constraint("Coincident", 64, 3, 2, 3),
    Sketcher.Constraint("Equal", 1, 3),
    Sketcher.Constraint("Equal", 3, 5),
    Sketcher.Constraint("Equal", 2, 6),
    Sketcher.Constraint("Equal", 5, 7),
    Sketcher.Constraint("Equal", 7, 9),
    Sketcher.Constraint("Equal", 6, 10),
    Sketcher.Constraint("Equal", 9, 11),
    Sketcher.Constraint("Equal", 11, 13),
    Sketcher.Constraint("Equal", 10, 14),
    Sketcher.Constraint("Equal", 13, 15),
    Sketcher.Constraint("Equal", 15, 17),
    Sketcher.Constraint("Equal", 17, 21),
    Sketcher.Constraint("Equal", 21, 23),
    Sketcher.Constraint("Equal", 20, 24),
    Sketcher.Constraint("Equal", 23, 25),
    Sketcher.Constraint("Equal", 25, 27),
    Sketcher.Constraint("Equal", 24, 28),
    Sketcher.Constraint("Equal", 27, 29),
    Sketcher.Constraint("Equal", 29, 31),
    Sketcher.Constraint("Equal", 28, 32),
    Sketcher.Constraint("Equal", 31, 33),
    Sketcher.Constraint("Equal", 33, 35),
    Sketcher.Constraint("Equal", 35, 37),
    Sketcher.Constraint("Equal", 37, 39),
    Sketcher.Constraint("Equal", 36, 40),
    Sketcher.Constraint("Equal", 39, 41),
    Sketcher.Constraint("Equal", 41, 43),
    Sketcher.Constraint("Equal", 40, 44),
    Sketcher.Constraint("Equal", 43, 45),
    Sketcher.Constraint("Equal", 45, 47),
    Sketcher.Constraint("Equal", 44, 48),
    Sketcher.Constraint("Equal", 50, 52),
    Sketcher.Constraint("Equal", 52, 54),
    Sketcher.Constraint("Equal", 54, 56),
    Sketcher.Constraint("Equal", 58, 60),
    Sketcher.Constraint("Equal", 60, 62),
    Sketcher.Constraint("Equal", 62, 64),
    Sketcher.Constraint("Equal", 47, 66),
    Sketcher.Constraint("Symmetric", 1, 3, 9, 3, -1, 1),
    Sketcher.Constraint("Symmetric", 3, 3, 11, 3, -1, 1),
    Sketcher.Constraint("Symmetric", 6, 3, 14, 3, -1, 1),
    Sketcher.Constraint("Symmetric", 2, 3, 6, 3, -2),
    Sketcher.Constraint("Horizontal", 2, 3, 3, 3),
    Sketcher.Constraint("Horizontal", 27, 3, 33, 3),
    Sketcher.Constraint("Horizontal", 57, 2, 60, 2),
    Sketcher.Constraint("Horizontal", 61, 2, 64, 2),
    Sketcher.Constraint("Vertical", 1, 3, 2, 3),
    Sketcher.Constraint("Vertical", 14, 3, 15, 3),
    Sketcher.Constraint("Vertical", 23, 3, 29, 3),
    Sketcher.Constraint("Vertical", 39, 3, 45, 3),
    Sketcher.Constraint("Vertical", 51, 2, 54, 2),
    Sketcher.Constraint("Vertical", 19, 2, 56, 2),
    Sketcher.Constraint("Vertical", 59, 2, 62, 2),
    Sketcher.Constraint("Equal", 12, 8),
    Sketcher.Constraint("Equal", 30, 26),
    Sketcher.Constraint("Equal", 46, 42),
    Sketcher.Constraint("Equal", 55, 53),
    Sketcher.Constraint("Equal", 63, 61),
    Sketcher.Constraint("Radius", 1, Q("0.0625 in")),
    Sketcher.Constraint("Radius", 20, Q("0.5435 in")),
    Sketcher.Constraint("Radius", 50, Q("0.7935 in")),
    Sketcher.Constraint("DistanceX", 18, 2, 18, 1, Q("0.1875 in")),
    Sketcher.Constraint("DistanceX", -1, 1, 1, 3, Q("0.75 in")),
    Sketcher.Constraint("DistanceY", -1, 1, 37, 2, Q("0.25 in")),
    Sketcher.Constraint("DistanceX", 4, 2, 4, 1, Q("0.8505 in")),
    Sketcher.Constraint("DistanceY", -1, 1, 21, 3, Q("0.46875 in")),
    Sketcher.Constraint("DistanceY", 50, 2, -1, 1, Q("0.28125 in")),
    Sketcher.Constraint("Radius", 36, Q("20.94865 mm")),
    Sketcher.Constraint("Radius", 49, Q("27.29865 mm")),
    Sketcher.Constraint("Radius", 58, Q("13.01115 mm")),
    Sketcher.Constraint("DistanceY", 19, 2, 19, 1, Q("0.055432 mm")),
])
pocket1 = doc.addObject("PartDesign::Pocket", "Pocket")
body.addObject(pocket1)
pocket1.Profile = sketch4
pocket1.Length = Q("0.15 in")

sketch5 = doc.addObject("Sketcher::SketchObject", "Sketch004")
body.addObject(sketch5)
sketch5.AttachmentSupport = (doc.XY_Plane, [""])
sketch5.MapMode = "FlatFace"
sketch5.AttachmentOffset = App.Placement(Vector(0, 0, 0.5 * 25.4), App.Rotation())
sketch5.addGeometry([
    Part.Circle(Vector(-1.778, 4.7625, 0), Vector(0, 0, 1), 1.190625),
    Part.Circle(Vector(1.778, 4.7625, 0), Vector(0, 0, 1), 1.190625),
    Part.Circle(Vector(1.778, -4.7625, 0), Vector(0, 0, 1), 1.190625),
    Part.Circle(Vector(-1.778, -4.7625, 0), Vector(0, 0, 1), 1.190625),
], False)
sketch5.addConstraint([
    Sketcher.Constraint("Equal", 0, 1),
    Sketcher.Constraint("Equal", 1, 2),
    Sketcher.Constraint("Equal", 2, 3),
    Sketcher.Constraint("Symmetric", 0, 3, 2, 3, -1, 1),
    Sketcher.Constraint("Symmetric", 1, 3, 3, 3, -1, 1),
    Sketcher.Constraint("Symmetric", 0, 3, 1, 3, -2),
    Sketcher.Constraint("Diameter", 0, Q("0.09375 in")),
    Sketcher.Constraint("DistanceX", 0, 3, -1, 1, Q("0.07 in")),
    Sketcher.Constraint("DistanceY", -1, 1, 0, 3, Q("0.1875 in")),
])
pocket2 = doc.addObject("PartDesign::Pocket", "Pocket001")
body.addObject(pocket2)
pocket2.Profile = sketch5
pocket2.Type = "ThroughAll"

doc.recompute()
